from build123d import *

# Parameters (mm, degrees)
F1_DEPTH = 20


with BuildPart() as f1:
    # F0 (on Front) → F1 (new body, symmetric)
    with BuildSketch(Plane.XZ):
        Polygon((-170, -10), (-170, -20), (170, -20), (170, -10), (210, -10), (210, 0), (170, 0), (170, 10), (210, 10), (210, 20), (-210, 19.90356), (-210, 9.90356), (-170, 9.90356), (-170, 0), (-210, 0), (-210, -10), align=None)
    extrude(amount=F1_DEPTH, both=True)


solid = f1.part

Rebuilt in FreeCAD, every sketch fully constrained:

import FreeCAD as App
import Part
import Sketcher


def add_polygon(sketch, points):
    """Adds a closed chain of lines whose ends are joined by coincident constraints."""
    first, n = sketch.GeometryCount, len(points)
    for a, b in zip(points, points[1:] + points[:1]):
        sketch.addGeometry(Part.LineSegment(App.Vector(*a, 0), App.Vector(*b, 0)), False)
    for i in range(n):
        sketch.addConstraint(Sketcher.Constraint("Coincident", first + i, 2, first + (i + 1) % n, 1))

doc = App.newDocument("Part")
body = doc.addObject("PartDesign::Body", "Body")

sketch1 = body.newObject("Sketcher::SketchObject", "Sketch")
sketch1.AttachmentSupport = (doc.getObject("XZ_Plane"), [""])
sketch1.MapMode = "FlatFace"
add_polygon(sketch1, [(-170, -10), (-170, -20), (170, -20), (170, -10), (210, -10), (210, 0), (170, 0), (170, 10), (210, 10), (210, 20), (-210, 20), (-210, 10), (-170, 10), (-170, 0), (-210, 0), (-210, -10)])
sketch1.addConstraint(Sketcher.Constraint("Vertical", 0))
sketch1.addConstraint(Sketcher.Constraint("Horizontal", 1))
sketch1.addConstraint(Sketcher.Constraint("Vertical", 2))
sketch1.addConstraint(Sketcher.Constraint("Horizontal", 3))
sketch1.addConstraint(Sketcher.Constraint("Vertical", 4))
sketch1.addConstraint(Sketcher.Constraint("Horizontal", 5))
sketch1.addConstraint(Sketcher.Constraint("Vertical", 6))
sketch1.addConstraint(Sketcher.Constraint("Horizontal", 7))
sketch1.addConstraint(Sketcher.Constraint("Vertical", 8))
sketch1.addConstraint(Sketcher.Constraint("Vertical", 10))
sketch1.addConstraint(Sketcher.Constraint("Horizontal", 11))
sketch1.addConstraint(Sketcher.Constraint("Vertical", 12))
sketch1.addConstraint(Sketcher.Constraint("Horizontal", 13))
sketch1.addConstraint(Sketcher.Constraint("Vertical", 14))
sketch1.addConstraint(Sketcher.Constraint("Horizontal", 15))
sketch1.addConstraint(Sketcher.Constraint("Symmetric", 5, 2, 12, 2, -1, 1))
sketch1.addConstraint(Sketcher.Constraint("Symmetric", 7, 2, 14, 2, -1, 1))
sketch1.addConstraint(Sketcher.Constraint("Symmetric", 4, 2, 13, 2, -2))
sketch1.addConstraint(Sketcher.Constraint("Symmetric", 2, 2, 15, 2, -2))
sketch1.addConstraint(Sketcher.Constraint("Vertical", 2, 2, 5, 2))
sketch1.addConstraint(Sketcher.Constraint("Vertical", 10, 2, 13, 2))
sketch1.addConstraint(Sketcher.Constraint("Equal", 2, 4))
sketch1.addConstraint(Sketcher.Constraint("Equal", 6, 8))
sketch1.addConstraint(Sketcher.Constraint("Equal", 8, 10))
sketch1.addConstraint(Sketcher.Constraint("DistanceX", 1, 1, 1, 2, 340.0))
sketch1.addConstraint(Sketcher.Constraint("DistanceX", 3, 1, 3, 2, 40.0))
sketch1.addConstraint(Sketcher.Constraint("DistanceY", 0, 2, 0, 1, 10.0))
sketch1.addConstraint(Sketcher.Constraint("DistanceY", 12, 2, 12, 1, 9.90356))
pad1 = body.newObject("PartDesign::Pad", "Pad")
pad1.Profile = sketch1
pad1.Length = 40
pad1.Midplane = True

doc.recompute()
